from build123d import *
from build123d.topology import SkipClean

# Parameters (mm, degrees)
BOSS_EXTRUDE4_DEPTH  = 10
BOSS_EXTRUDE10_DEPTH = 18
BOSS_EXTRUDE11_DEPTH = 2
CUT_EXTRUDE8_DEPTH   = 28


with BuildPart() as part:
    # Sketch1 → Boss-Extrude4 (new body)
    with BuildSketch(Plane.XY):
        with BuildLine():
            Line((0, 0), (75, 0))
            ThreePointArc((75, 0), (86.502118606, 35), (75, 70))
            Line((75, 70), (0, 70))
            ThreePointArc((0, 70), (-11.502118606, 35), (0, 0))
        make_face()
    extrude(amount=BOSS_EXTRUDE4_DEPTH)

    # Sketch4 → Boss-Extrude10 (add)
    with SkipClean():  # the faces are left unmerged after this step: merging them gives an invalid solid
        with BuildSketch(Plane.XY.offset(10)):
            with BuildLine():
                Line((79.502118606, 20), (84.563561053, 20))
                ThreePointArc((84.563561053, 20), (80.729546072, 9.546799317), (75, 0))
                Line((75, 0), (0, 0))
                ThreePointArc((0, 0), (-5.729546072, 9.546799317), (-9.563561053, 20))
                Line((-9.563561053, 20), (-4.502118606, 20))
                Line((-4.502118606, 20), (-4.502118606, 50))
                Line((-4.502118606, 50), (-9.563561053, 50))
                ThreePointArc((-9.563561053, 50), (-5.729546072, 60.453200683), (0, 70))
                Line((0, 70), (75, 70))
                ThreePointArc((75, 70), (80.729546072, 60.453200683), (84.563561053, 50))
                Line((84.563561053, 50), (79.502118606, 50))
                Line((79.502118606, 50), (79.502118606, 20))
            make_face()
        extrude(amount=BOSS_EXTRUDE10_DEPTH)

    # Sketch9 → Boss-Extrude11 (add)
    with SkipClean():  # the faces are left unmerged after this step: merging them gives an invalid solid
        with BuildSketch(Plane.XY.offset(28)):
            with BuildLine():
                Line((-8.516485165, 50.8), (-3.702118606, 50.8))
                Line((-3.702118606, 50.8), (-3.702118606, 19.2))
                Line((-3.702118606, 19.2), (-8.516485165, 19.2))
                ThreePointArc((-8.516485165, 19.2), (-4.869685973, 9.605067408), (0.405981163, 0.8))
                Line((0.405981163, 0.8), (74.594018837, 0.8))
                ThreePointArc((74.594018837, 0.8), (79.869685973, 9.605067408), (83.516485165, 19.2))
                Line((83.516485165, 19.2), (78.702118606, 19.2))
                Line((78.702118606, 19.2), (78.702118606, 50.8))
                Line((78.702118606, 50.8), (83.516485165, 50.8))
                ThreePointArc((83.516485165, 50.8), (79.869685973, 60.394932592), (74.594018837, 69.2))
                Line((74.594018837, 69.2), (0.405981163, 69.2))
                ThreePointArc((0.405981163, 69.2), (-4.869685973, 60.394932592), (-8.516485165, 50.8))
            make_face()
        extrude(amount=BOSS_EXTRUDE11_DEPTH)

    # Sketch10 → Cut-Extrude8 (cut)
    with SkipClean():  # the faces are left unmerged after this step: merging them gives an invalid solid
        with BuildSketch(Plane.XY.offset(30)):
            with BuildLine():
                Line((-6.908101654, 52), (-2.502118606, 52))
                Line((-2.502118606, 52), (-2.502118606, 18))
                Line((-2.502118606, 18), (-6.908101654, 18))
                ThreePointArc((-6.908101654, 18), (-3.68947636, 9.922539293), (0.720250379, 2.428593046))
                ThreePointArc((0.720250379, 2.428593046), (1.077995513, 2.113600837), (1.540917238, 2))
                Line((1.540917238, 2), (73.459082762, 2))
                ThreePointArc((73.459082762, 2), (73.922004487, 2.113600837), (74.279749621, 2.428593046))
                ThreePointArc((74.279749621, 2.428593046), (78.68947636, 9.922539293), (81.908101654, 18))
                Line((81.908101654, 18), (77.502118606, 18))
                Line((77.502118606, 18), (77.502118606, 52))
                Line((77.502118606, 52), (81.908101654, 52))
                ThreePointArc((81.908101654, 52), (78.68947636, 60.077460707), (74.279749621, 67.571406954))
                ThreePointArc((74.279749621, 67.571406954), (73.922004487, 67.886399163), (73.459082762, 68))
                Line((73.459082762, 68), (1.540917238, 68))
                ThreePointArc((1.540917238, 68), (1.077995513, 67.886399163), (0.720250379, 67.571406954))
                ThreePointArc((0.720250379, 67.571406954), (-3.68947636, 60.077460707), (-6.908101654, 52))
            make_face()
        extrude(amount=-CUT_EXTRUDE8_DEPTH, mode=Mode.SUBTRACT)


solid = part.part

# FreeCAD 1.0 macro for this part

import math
import FreeCAD as App
import Part
import Sketcher

V = App.Vector
Q = App.Units.Quantity

doc = App.newDocument("Part")
body = doc.addObject("PartDesign::Body", "Body")

# Sketch on XY plane
sketch1 = doc.addObject("Sketcher::SketchObject", "Sketch")
body.addObject(sketch1)
sketch1.AttachmentSupport = (doc.XY_Plane, [""])
sketch1.MapMode = "FlatFace"
sketch1.addGeometry(Part.LineSegment(V(0, 0, 0), V(75, 0, 0)), False)
sketch1.addGeometry(Part.ArcOfCircle(Part.Circle(V(27.5, 35, 0), V(0, 0, 1), 59.002119), math.radians(-36.384352), math.radians(36.384352)), False)
sketch1.addGeometry(Part.LineSegment(V(75, 70, 0), V(0, 70, 0)), False)
sketch1.addGeometry(Part.ArcOfCircle(Part.Circle(V(47.5, 35, 0), V(0, 0, 1), 59.002119), math.radians(143.615648), math.radians(216.384352)), False)
sketch1.addConstraint(Sketcher.Constraint("Coincident", 0, 2, 1, 1))
sketch1.addConstraint(Sketcher.Constraint("Coincident", 1, 2, 2, 1))
sketch1.addConstraint(Sketcher.Constraint("Coincident", 2, 2, 3, 1))
sketch1.addConstraint(Sketcher.Constraint("Coincident", 3, 2, 0, 1))
sketch1.addConstraint(Sketcher.Constraint("Horizontal", 0))
sketch1.addConstraint(Sketcher.Constraint("Horizontal", 2))
sketch1.addConstraint(Sketcher.Constraint("Coincident", 3, 2, -1, 1))
sketch1.addConstraint(Sketcher.Constraint("Equal", 1, 3))
sketch1.addConstraint(Sketcher.Constraint("PointOnObject", 2, 2, -2))
sketch1.addConstraint(Sketcher.Constraint("Horizontal", 1, 3, 3, 3))
sketch1.addConstraint(Sketcher.Constraint("DistanceX", 0, 1, 0, 2, Q("75 mm")))
sketch1.addConstraint(Sketcher.Constraint("DistanceY", -1, 1, 1, 3, Q("35 mm")))
sketch1.addConstraint(Sketcher.Constraint("DistanceX", 1, 3, 3, 3, Q("20 mm")))
pad1 = doc.addObject("PartDesign::Pad", "Pad")
body.addObject(pad1)
pad1.Profile = sketch1
pad1.Length = 10

# Sketch on XY plane
sketch2 = doc.addObject("Sketcher::SketchObject", "Sketch001")
body.addObject(sketch2)
sketch2.AttachmentSupport = (doc.XY_Plane, [""])
sketch2.MapMode = "FlatFace"
sketch2.AttachmentOffset = App.Placement(V(0, 0, 10), App.Rotation())
sketch2.addGeometry(Part.LineSegment(V(84.563561, 20, 0), V(79.502119, 20, 0)), False)
sketch2.addGeometry(Part.LineSegment(V(79.502119, 20, 0), V(79.502119, 50, 0)), False)
sketch2.addGeometry(Part.LineSegment(V(79.502119, 50, 0), V(84.563561, 50, 0)), False)
sketch2.addGeometry(Part.ArcOfCircle(Part.Circle(V(27.5, 35, 0), V(0, 0, 1), 59.002119), math.radians(14.727855), math.radians(36.384352)), False)
sketch2.addGeometry(Part.LineSegment(V(75, 70, 0), V(0, 70, 0)), False)
sketch2.addGeometry(Part.ArcOfCircle(Part.Circle(V(47.5, 35, 0), V(0, 0, 1), 59.002119), math.radians(143.615648), math.radians(165.272145)), False)
sketch2.addGeometry(Part.LineSegment(V(-9.563561, 50, 0), V(-4.502119, 50, 0)), False)
sketch2.addGeometry(Part.LineSegment(V(-4.502119, 50, 0), V(-4.502119, 20, 0)), False)
sketch2.addGeometry(Part.LineSegment(V(-4.502119, 20, 0), V(-9.563561, 20, 0)), False)
sketch2.addGeometry(Part.ArcOfCircle(Part.Circle(V(47.5, 35, 0), V(0, 0, 1), 59.002119), math.radians(-165.272145), math.radians(-143.615648)), False)
sketch2.addGeometry(Part.LineSegment(V(0, 0, 0), V(75, 0, 0)), False)
sketch2.addGeometry(Part.ArcOfCircle(Part.Circle(V(27.5, 35, 0), V(0, 0, 1), 59.002119), math.radians(-36.384352), math.radians(-14.727855)), False)
sketch2.addConstraint(Sketcher.Constraint("Coincident", 0, 2, 1, 1))
sketch2.addConstraint(Sketcher.Constraint("Coincident", 1, 2, 2, 1))
sketch2.addConstraint(Sketcher.Constraint("Coincident", 2, 2, 3, 1))
sketch2.addConstraint(Sketcher.Constraint("Coincident", 3, 2, 4, 1))
sketch2.addConstraint(Sketcher.Constraint("Coincident", 4, 2, 5, 1))
sketch2.addConstraint(Sketcher.Constraint("Coincident", 5, 2, 6, 1))
sketch2.addConstraint(Sketcher.Constraint("Coincident", 6, 2, 7, 1))
sketch2.addConstraint(Sketcher.Constraint("Coincident", 7, 2, 8, 1))
sketch2.addConstraint(Sketcher.Constraint("Coincident", 8, 2, 9, 1))
sketch2.addConstraint(Sketcher.Constraint("Coincident", 9, 2, 10, 1))
sketch2.addConstraint(Sketcher.Constraint("Coincident", 10, 2, 11, 1))
sketch2.addConstraint(Sketcher.Constraint("Coincident", 11, 2, 0, 1))
sketch2.addConstraint(Sketcher.Constraint("Horizontal", 0))
sketch2.addConstraint(Sketcher.Constraint("Vertical", 1))
sketch2.addConstraint(Sketcher.Constraint("Horizontal", 2))
sketch2.addConstraint(Sketcher.Constraint("Horizontal", 4))
sketch2.addConstraint(Sketcher.Constraint("Horizontal", 6))
sketch2.addConstraint(Sketcher.Constraint("Vertical", 7))
sketch2.addConstraint(Sketcher.Constraint("Horizontal", 8))
sketch2.addConstraint(Sketcher.Constraint("Horizontal", 10))
sketch2.addConstraint(Sketcher.Constraint("Coincident", 9, 2, -1, 1))
sketch2.addConstraint(Sketcher.Constraint("Coincident", 9, 3, 5, 3))
sketch2.addConstraint(Sketcher.Constraint("Coincident", 11, 3, 3, 3))
sketch2.addConstraint(Sketcher.Constraint("Equal", 3, 5))
sketch2.addConstraint(Sketcher.Constraint("Equal", 5, 9))
sketch2.addConstraint(Sketcher.Constraint("Equal", 9, 11))
sketch2.addConstraint(Sketcher.Constraint("PointOnObject", 4, 2, -2))
sketch2.addConstraint(Sketcher.Constraint("Horizontal", 3, 3, 5, 3))
sketch2.addConstraint(Sketcher.Constraint("Horizontal", 2, 2, 5, 2))
sketch2.addConstraint(Sketcher.Constraint("Horizontal", 0, 2, 7, 2))
sketch2.addConstraint(Sketcher.Constraint("Vertical", 5, 2, 8, 2))
sketch2.addConstraint(Sketcher.Constraint("Equal", 2, 6))
sketch2.addConstraint(Sketcher.Constraint("DistanceX", 4, 2, 4, 1, Q("75 mm")))
sketch2.addConstraint(Sketcher.Constraint("DistanceY", 1, 1, 1, 2, Q("30 mm")))
sketch2.addConstraint(Sketcher.Constraint("DistanceY", -1, 1, 3, 3, Q("35 mm")))
sketch2.addConstraint(Sketcher.Constraint("DistanceX", 3, 3, 5, 3, Q("20 mm")))
sketch2.addConstraint(Sketcher.Constraint("DistanceX", 0, 2, 0, 1, Q("5.061442 mm")))
pad2 = doc.addObject("PartDesign::Pad", "Pad001")
body.addObject(pad2)
pad2.Profile = sketch2
pad2.Length = 18

# Sketch on XY plane
sketch3 = doc.addObject("Sketcher::SketchObject", "Sketch002")
body.addObject(sketch3)
sketch3.AttachmentSupport = (doc.XY_Plane, [""])
sketch3.MapMode = "FlatFace"
sketch3.AttachmentOffset = App.Placement(V(0, 0, 28), App.Rotation())
sketch3.addGeometry(Part.LineSegment(V(-8.516485, 50.8, 0), V(-3.702119, 50.8, 0)), False)
sketch3.addGeometry(Part.LineSegment(V(-3.702119, 50.8, 0), V(-3.702119, 19.2, 0)), False)
sketch3.addGeometry(Part.LineSegment(V(-3.702119, 19.2, 0), V(-8.516485, 19.2, 0)), False)
sketch3.addGeometry(Part.ArcOfCircle(Part.Circle(V(47.5, 35, 0), V(0, 0, 1), 58.202119), math.radians(-164.248373), math.radians(-144.012589)), False)
sketch3.addGeometry(Part.LineSegment(V(0.405981, 0.8, 0), V(74.594019, 0.8, 0)), False)
sketch3.addGeometry(Part.ArcOfCircle(Part.Circle(V(27.5, 35, 0), V(0, 0, 1), 58.202119), math.radians(-35.987411), math.radians(-15.751627)), False)
sketch3.addGeometry(Part.LineSegment(V(83.516485, 19.2, 0), V(78.702119, 19.2, 0)), False)
sketch3.addGeometry(Part.LineSegment(V(78.702119, 19.2, 0), V(78.702119, 50.8, 0)), False)
sketch3.addGeometry(Part.LineSegment(V(78.702119, 50.8, 0), V(83.516485, 50.8, 0)), False)
sketch3.addGeometry(Part.ArcOfCircle(Part.Circle(V(27.5, 35, 0), V(0, 0, 1), 58.202119), math.radians(15.751627), math.radians(35.987411)), False)
sketch3.addGeometry(Part.LineSegment(V(74.594019, 69.2, 0), V(0.405981, 69.2, 0)), False)
sketch3.addGeometry(Part.ArcOfCircle(Part.Circle(V(47.5, 35, 0), V(0, 0, 1), 58.202119), math.radians(144.012589), math.radians(164.248373)), False)
sketch3.addConstraint(Sketcher.Constraint("Coincident", 0, 2, 1, 1))
sketch3.addConstraint(Sketcher.Constraint("Coincident", 1, 2, 2, 1))
sketch3.addConstraint(Sketcher.Constraint("Coincident", 2, 2, 3, 1))
sketch3.addConstraint(Sketcher.Constraint("Coincident", 3, 2, 4, 1))
sketch3.addConstraint(Sketcher.Constraint("Coincident", 4, 2, 5, 1))
sketch3.addConstraint(Sketcher.Constraint("Coincident", 5, 2, 6, 1))
sketch3.addConstraint(Sketcher.Constraint("Coincident", 6, 2, 7, 1))
sketch3.addConstraint(Sketcher.Constraint("Coincident", 7, 2, 8, 1))
sketch3.addConstraint(Sketcher.Constraint("Coincident", 8, 2, 9, 1))
sketch3.addConstraint(Sketcher.Constraint("Coincident", 9, 2, 10, 1))
sketch3.addConstraint(Sketcher.Constraint("Coincident", 10, 2, 11, 1))
sketch3.addConstraint(Sketcher.Constraint("Coincident", 11, 2, 0, 1))
sketch3.addConstraint(Sketcher.Constraint("Horizontal", 0))
sketch3.addConstraint(Sketcher.Constraint("Vertical", 1))
sketch3.addConstraint(Sketcher.Constraint("Horizontal", 2))
sketch3.addConstraint(Sketcher.Constraint("Horizontal", 4))
sketch3.addConstraint(Sketcher.Constraint("Horizontal", 6))
sketch3.addConstraint(Sketcher.Constraint("Vertical", 7))
sketch3.addConstraint(Sketcher.Constraint("Horizontal", 8))
sketch3.addConstraint(Sketcher.Constraint("Horizontal", 10))
sketch3.addConstraint(Sketcher.Constraint("Coincident", 9, 3, 5, 3))
sketch3.addConstraint(Sketcher.Constraint("Coincident", 11, 3, 3, 3))
sketch3.addConstraint(Sketcher.Constraint("Equal", 3, 5))
sketch3.addConstraint(Sketcher.Constraint("Equal", 5, 9))
sketch3.addConstraint(Sketcher.Constraint("Equal", 9, 11))
sketch3.addConstraint(Sketcher.Constraint("Horizontal", 3, 3, 5, 3))
sketch3.addConstraint(Sketcher.Constraint("Horizontal", 2, 2, 5, 2))
sketch3.addConstraint(Sketcher.Constraint("Horizontal", 0, 2, 7, 2))
sketch3.addConstraint(Sketcher.Constraint("Vertical", 5, 2, 8, 2))
sketch3.addConstraint(Sketcher.Constraint("Vertical", 4, 2, 9, 2))
sketch3.addConstraint(Sketcher.Constraint("Equal", 2, 6))
sketch3.addConstraint(Sketcher.Constraint("DistanceY", 1, 2, 1, 1, Q("31.6 mm")))
sketch3.addConstraint(Sketcher.Constraint("DistanceY", -1, 1, 3, 3, Q("35 mm")))
sketch3.addConstraint(Sketcher.Constraint("DistanceX", 5, 3, 3, 3, Q("20 mm")))
sketch3.addConstraint(Sketcher.Constraint("DistanceY", 3, 2, 0, 2, Q("50 mm")))
sketch3.addConstraint(Sketcher.Constraint("DistanceX", -1, 1, 3, 3, Q("47.5 mm")))
sketch3.addConstraint(Sketcher.Constraint("Radius", 3, Q("58.202119 mm")))
sketch3.addConstraint(Sketcher.Constraint("DistanceX", 1, 2, 3, 2, Q("4.1081 mm")))
pad3 = doc.addObject("PartDesign::Pad", "Pad002")
body.addObject(pad3)
pad3.Profile = sketch3
pad3.Length = 2

# Sketch on XY plane
sketch4 = doc.addObject("Sketcher::SketchObject", "Sketch003")
body.addObject(sketch4)
sketch4.AttachmentSupport = (doc.XY_Plane, [""])
sketch4.MapMode = "FlatFace"
sketch4.AttachmentOffset = App.Placement(V(0, 0, 30), App.Rotation())
sketch4.addGeometry(Part.LineSegment(V(-6.908102, 52, 0), V(-2.502119, 52, 0)), False)
sketch4.addGeometry(Part.LineSegment(V(-2.502119, 52, 0), V(-2.502119, 18, 0)), False)
sketch4.addGeometry(Part.LineSegment(V(-2.502119, 18, 0), V(-6.908102, 18, 0)), False)
sketch4.addGeometry(Part.ArcOfCircle(Part.Circle(V(47.5, 35, 0), V(0, 0, 1), 57.002119), math.radians(-162.648404), math.radians(-145.151605)), False)
sketch4.addGeometry(Part.ArcOfCircle(Part.Circle(V(1.540917, 3, 0), V(0, 0, 1), 1), math.radians(-145.151605), math.radians(-90)), False)
sketch4.addGeometry(Part.LineSegment(V(1.540917, 2, 0), V(73.459083, 2, 0)), False)
sketch4.addGeometry(Part.ArcOfCircle(Part.Circle(V(73.459083, 3, 0), V(0, 0, 1), 1), math.radians(-90), math.radians(-34.848395)), False)
sketch4.addGeometry(Part.ArcOfCircle(Part.Circle(V(27.5, 35, 0), V(0, 0, 1), 57.002119), math.radians(-34.848395), math.radians(-17.351596)), False)
sketch4.addGeometry(Part.LineSegment(V(81.908102, 18, 0), V(77.502119, 18, 0)), False)
sketch4.addGeometry(Part.LineSegment(V(77.502119, 18, 0), V(77.502119, 52, 0)), False)
sketch4.addGeometry(Part.LineSegment(V(77.502119, 52, 0), V(81.908102, 52, 0)), False)
sketch4.addGeometry(Part.ArcOfCircle(Part.Circle(V(27.5, 35, 0), V(0, 0, 1), 57.002119), math.radians(17.351596), math.radians(34.848395)), False)
sketch4.addGeometry(Part.ArcOfCircle(Part.Circle(V(73.459083, 67, 0), V(0, 0, 1), 1), math.radians(34.848395), math.radians(90)), False)
sketch4.addGeometry(Part.LineSegment(V(73.459083, 68, 0), V(1.540917, 68, 0)), False)
sketch4.addGeometry(Part.ArcOfCircle(Part.Circle(V(1.540917, 67, 0), V(0, 0, 1), 1), math.radians(90), math.radians(145.151605)), False)
sketch4.addGeometry(Part.ArcOfCircle(Part.Circle(V(47.5, 35, 0), V(0, 0, 1), 57.002119), math.radians(145.151605), math.radians(162.648404)), False)
sketch4.addConstraint(Sketcher.Constraint("Coincident", 0, 2, 1, 1))
sketch4.addConstraint(Sketcher.Constraint("Coincident", 1, 2, 2, 1))
sketch4.addConstraint(Sketcher.Constraint("Coincident", 2, 2, 3, 1))
sketch4.addConstraint(Sketcher.Constraint("Tangent", 3, 2, 4, 1))
sketch4.addConstraint(Sketcher.Constraint("Tangent", 4, 2, 5, 1))
sketch4.addConstraint(Sketcher.Constraint("Tangent", 5, 2, 6, 1))
sketch4.addConstraint(Sketcher.Constraint("Tangent", 6, 2, 7, 1))
sketch4.addConstraint(Sketcher.Constraint("Coincident", 7, 2, 8, 1))
sketch4.addConstraint(Sketcher.Constraint("Coincident", 8, 2, 9, 1))
sketch4.addConstraint(Sketcher.Constraint("Coincident", 9, 2, 10, 1))
sketch4.addConstraint(Sketcher.Constraint("Coincident", 10, 2, 11, 1))
sketch4.addConstraint(Sketcher.Constraint("Tangent", 11, 2, 12, 1))
sketch4.addConstraint(Sketcher.Constraint("Tangent", 12, 2, 13, 1))
sketch4.addConstraint(Sketcher.Constraint("Tangent", 13, 2, 14, 1))
sketch4.addConstraint(Sketcher.Constraint("Tangent", 14, 2, 15, 1))
sketch4.addConstraint(Sketcher.Constraint("Coincident", 15, 2, 0, 1))
sketch4.addConstraint(Sketcher.Constraint("Horizontal", 0))
sketch4.addConstraint(Sketcher.Constraint("Vertical", 1))
sketch4.addConstraint(Sketcher.Constraint("Horizontal", 2))
sketch4.addConstraint(Sketcher.Constraint("Horizontal", 5))
sketch4.addConstraint(Sketcher.Constraint("Horizontal", 8))
sketch4.addConstraint(Sketcher.Constraint("Vertical", 9))
sketch4.addConstraint(Sketcher.Constraint("Horizontal", 10))
sketch4.addConstraint(Sketcher.Constraint("Horizontal", 13))
sketch4.addConstraint(Sketcher.Constraint("Coincident", 11, 3, 7, 3))
sketch4.addConstraint(Sketcher.Constraint("Coincident", 15, 3, 3, 3))
sketch4.addConstraint(Sketcher.Constraint("Equal", 4, 6))
sketch4.addConstraint(Sketcher.Constraint("Equal", 3, 7))
sketch4.addConstraint(Sketcher.Constraint("Equal", 7, 11))
sketch4.addConstraint(Sketcher.Constraint("Equal", 6, 12))
sketch4.addConstraint(Sketcher.Constraint("Equal", 12, 14))
sketch4.addConstraint(Sketcher.Constraint("Equal", 11, 15))
sketch4.addConstraint(Sketcher.Constraint("Horizontal", 3, 3, 7, 3))
sketch4.addConstraint(Sketcher.Constraint("Horizontal", 2, 2, 7, 2))
sketch4.addConstraint(Sketcher.Constraint("Horizontal", 0, 2, 9, 2))
sketch4.addConstraint(Sketcher.Constraint("Vertical", 6, 3, 12, 3))
sketch4.addConstraint(Sketcher.Constraint("Vertical", 7, 2, 10, 2))
sketch4.addConstraint(Sketcher.Constraint("Equal", 2, 8))
sketch4.addConstraint(Sketcher.Constraint("Radius", 4, Q("1 mm")))
sketch4.addConstraint(Sketcher.Constraint("DistanceY", 1, 2, 1, 1, Q("34 mm")))
sketch4.addConstraint(Sketcher.Constraint("DistanceY", -1, 1, 3, 3, Q("35 mm")))
sketch4.addConstraint(Sketcher.Constraint("DistanceY", -1, 1, 4, 3, Q("3 mm")))
sketch4.addConstraint(Sketcher.Constraint("DistanceX", 7, 3, 3, 3, Q("20 mm")))
sketch4.addConstraint(Sketcher.Constraint("DistanceX", -1, 1, 3, 3, Q("47.5 mm")))
sketch4.addConstraint(Sketcher.Constraint("Radius", 3, Q("57.002119 mm")))
sketch4.addConstraint(Sketcher.Constraint("DistanceX", 0, 1, 0, 2, Q("4.405983 mm")))
pocket1 = doc.addObject("PartDesign::Pocket", "Pocket")
body.addObject(pocket1)
pocket1.Profile = sketch4
pocket1.Length = 28

doc.recompute()
